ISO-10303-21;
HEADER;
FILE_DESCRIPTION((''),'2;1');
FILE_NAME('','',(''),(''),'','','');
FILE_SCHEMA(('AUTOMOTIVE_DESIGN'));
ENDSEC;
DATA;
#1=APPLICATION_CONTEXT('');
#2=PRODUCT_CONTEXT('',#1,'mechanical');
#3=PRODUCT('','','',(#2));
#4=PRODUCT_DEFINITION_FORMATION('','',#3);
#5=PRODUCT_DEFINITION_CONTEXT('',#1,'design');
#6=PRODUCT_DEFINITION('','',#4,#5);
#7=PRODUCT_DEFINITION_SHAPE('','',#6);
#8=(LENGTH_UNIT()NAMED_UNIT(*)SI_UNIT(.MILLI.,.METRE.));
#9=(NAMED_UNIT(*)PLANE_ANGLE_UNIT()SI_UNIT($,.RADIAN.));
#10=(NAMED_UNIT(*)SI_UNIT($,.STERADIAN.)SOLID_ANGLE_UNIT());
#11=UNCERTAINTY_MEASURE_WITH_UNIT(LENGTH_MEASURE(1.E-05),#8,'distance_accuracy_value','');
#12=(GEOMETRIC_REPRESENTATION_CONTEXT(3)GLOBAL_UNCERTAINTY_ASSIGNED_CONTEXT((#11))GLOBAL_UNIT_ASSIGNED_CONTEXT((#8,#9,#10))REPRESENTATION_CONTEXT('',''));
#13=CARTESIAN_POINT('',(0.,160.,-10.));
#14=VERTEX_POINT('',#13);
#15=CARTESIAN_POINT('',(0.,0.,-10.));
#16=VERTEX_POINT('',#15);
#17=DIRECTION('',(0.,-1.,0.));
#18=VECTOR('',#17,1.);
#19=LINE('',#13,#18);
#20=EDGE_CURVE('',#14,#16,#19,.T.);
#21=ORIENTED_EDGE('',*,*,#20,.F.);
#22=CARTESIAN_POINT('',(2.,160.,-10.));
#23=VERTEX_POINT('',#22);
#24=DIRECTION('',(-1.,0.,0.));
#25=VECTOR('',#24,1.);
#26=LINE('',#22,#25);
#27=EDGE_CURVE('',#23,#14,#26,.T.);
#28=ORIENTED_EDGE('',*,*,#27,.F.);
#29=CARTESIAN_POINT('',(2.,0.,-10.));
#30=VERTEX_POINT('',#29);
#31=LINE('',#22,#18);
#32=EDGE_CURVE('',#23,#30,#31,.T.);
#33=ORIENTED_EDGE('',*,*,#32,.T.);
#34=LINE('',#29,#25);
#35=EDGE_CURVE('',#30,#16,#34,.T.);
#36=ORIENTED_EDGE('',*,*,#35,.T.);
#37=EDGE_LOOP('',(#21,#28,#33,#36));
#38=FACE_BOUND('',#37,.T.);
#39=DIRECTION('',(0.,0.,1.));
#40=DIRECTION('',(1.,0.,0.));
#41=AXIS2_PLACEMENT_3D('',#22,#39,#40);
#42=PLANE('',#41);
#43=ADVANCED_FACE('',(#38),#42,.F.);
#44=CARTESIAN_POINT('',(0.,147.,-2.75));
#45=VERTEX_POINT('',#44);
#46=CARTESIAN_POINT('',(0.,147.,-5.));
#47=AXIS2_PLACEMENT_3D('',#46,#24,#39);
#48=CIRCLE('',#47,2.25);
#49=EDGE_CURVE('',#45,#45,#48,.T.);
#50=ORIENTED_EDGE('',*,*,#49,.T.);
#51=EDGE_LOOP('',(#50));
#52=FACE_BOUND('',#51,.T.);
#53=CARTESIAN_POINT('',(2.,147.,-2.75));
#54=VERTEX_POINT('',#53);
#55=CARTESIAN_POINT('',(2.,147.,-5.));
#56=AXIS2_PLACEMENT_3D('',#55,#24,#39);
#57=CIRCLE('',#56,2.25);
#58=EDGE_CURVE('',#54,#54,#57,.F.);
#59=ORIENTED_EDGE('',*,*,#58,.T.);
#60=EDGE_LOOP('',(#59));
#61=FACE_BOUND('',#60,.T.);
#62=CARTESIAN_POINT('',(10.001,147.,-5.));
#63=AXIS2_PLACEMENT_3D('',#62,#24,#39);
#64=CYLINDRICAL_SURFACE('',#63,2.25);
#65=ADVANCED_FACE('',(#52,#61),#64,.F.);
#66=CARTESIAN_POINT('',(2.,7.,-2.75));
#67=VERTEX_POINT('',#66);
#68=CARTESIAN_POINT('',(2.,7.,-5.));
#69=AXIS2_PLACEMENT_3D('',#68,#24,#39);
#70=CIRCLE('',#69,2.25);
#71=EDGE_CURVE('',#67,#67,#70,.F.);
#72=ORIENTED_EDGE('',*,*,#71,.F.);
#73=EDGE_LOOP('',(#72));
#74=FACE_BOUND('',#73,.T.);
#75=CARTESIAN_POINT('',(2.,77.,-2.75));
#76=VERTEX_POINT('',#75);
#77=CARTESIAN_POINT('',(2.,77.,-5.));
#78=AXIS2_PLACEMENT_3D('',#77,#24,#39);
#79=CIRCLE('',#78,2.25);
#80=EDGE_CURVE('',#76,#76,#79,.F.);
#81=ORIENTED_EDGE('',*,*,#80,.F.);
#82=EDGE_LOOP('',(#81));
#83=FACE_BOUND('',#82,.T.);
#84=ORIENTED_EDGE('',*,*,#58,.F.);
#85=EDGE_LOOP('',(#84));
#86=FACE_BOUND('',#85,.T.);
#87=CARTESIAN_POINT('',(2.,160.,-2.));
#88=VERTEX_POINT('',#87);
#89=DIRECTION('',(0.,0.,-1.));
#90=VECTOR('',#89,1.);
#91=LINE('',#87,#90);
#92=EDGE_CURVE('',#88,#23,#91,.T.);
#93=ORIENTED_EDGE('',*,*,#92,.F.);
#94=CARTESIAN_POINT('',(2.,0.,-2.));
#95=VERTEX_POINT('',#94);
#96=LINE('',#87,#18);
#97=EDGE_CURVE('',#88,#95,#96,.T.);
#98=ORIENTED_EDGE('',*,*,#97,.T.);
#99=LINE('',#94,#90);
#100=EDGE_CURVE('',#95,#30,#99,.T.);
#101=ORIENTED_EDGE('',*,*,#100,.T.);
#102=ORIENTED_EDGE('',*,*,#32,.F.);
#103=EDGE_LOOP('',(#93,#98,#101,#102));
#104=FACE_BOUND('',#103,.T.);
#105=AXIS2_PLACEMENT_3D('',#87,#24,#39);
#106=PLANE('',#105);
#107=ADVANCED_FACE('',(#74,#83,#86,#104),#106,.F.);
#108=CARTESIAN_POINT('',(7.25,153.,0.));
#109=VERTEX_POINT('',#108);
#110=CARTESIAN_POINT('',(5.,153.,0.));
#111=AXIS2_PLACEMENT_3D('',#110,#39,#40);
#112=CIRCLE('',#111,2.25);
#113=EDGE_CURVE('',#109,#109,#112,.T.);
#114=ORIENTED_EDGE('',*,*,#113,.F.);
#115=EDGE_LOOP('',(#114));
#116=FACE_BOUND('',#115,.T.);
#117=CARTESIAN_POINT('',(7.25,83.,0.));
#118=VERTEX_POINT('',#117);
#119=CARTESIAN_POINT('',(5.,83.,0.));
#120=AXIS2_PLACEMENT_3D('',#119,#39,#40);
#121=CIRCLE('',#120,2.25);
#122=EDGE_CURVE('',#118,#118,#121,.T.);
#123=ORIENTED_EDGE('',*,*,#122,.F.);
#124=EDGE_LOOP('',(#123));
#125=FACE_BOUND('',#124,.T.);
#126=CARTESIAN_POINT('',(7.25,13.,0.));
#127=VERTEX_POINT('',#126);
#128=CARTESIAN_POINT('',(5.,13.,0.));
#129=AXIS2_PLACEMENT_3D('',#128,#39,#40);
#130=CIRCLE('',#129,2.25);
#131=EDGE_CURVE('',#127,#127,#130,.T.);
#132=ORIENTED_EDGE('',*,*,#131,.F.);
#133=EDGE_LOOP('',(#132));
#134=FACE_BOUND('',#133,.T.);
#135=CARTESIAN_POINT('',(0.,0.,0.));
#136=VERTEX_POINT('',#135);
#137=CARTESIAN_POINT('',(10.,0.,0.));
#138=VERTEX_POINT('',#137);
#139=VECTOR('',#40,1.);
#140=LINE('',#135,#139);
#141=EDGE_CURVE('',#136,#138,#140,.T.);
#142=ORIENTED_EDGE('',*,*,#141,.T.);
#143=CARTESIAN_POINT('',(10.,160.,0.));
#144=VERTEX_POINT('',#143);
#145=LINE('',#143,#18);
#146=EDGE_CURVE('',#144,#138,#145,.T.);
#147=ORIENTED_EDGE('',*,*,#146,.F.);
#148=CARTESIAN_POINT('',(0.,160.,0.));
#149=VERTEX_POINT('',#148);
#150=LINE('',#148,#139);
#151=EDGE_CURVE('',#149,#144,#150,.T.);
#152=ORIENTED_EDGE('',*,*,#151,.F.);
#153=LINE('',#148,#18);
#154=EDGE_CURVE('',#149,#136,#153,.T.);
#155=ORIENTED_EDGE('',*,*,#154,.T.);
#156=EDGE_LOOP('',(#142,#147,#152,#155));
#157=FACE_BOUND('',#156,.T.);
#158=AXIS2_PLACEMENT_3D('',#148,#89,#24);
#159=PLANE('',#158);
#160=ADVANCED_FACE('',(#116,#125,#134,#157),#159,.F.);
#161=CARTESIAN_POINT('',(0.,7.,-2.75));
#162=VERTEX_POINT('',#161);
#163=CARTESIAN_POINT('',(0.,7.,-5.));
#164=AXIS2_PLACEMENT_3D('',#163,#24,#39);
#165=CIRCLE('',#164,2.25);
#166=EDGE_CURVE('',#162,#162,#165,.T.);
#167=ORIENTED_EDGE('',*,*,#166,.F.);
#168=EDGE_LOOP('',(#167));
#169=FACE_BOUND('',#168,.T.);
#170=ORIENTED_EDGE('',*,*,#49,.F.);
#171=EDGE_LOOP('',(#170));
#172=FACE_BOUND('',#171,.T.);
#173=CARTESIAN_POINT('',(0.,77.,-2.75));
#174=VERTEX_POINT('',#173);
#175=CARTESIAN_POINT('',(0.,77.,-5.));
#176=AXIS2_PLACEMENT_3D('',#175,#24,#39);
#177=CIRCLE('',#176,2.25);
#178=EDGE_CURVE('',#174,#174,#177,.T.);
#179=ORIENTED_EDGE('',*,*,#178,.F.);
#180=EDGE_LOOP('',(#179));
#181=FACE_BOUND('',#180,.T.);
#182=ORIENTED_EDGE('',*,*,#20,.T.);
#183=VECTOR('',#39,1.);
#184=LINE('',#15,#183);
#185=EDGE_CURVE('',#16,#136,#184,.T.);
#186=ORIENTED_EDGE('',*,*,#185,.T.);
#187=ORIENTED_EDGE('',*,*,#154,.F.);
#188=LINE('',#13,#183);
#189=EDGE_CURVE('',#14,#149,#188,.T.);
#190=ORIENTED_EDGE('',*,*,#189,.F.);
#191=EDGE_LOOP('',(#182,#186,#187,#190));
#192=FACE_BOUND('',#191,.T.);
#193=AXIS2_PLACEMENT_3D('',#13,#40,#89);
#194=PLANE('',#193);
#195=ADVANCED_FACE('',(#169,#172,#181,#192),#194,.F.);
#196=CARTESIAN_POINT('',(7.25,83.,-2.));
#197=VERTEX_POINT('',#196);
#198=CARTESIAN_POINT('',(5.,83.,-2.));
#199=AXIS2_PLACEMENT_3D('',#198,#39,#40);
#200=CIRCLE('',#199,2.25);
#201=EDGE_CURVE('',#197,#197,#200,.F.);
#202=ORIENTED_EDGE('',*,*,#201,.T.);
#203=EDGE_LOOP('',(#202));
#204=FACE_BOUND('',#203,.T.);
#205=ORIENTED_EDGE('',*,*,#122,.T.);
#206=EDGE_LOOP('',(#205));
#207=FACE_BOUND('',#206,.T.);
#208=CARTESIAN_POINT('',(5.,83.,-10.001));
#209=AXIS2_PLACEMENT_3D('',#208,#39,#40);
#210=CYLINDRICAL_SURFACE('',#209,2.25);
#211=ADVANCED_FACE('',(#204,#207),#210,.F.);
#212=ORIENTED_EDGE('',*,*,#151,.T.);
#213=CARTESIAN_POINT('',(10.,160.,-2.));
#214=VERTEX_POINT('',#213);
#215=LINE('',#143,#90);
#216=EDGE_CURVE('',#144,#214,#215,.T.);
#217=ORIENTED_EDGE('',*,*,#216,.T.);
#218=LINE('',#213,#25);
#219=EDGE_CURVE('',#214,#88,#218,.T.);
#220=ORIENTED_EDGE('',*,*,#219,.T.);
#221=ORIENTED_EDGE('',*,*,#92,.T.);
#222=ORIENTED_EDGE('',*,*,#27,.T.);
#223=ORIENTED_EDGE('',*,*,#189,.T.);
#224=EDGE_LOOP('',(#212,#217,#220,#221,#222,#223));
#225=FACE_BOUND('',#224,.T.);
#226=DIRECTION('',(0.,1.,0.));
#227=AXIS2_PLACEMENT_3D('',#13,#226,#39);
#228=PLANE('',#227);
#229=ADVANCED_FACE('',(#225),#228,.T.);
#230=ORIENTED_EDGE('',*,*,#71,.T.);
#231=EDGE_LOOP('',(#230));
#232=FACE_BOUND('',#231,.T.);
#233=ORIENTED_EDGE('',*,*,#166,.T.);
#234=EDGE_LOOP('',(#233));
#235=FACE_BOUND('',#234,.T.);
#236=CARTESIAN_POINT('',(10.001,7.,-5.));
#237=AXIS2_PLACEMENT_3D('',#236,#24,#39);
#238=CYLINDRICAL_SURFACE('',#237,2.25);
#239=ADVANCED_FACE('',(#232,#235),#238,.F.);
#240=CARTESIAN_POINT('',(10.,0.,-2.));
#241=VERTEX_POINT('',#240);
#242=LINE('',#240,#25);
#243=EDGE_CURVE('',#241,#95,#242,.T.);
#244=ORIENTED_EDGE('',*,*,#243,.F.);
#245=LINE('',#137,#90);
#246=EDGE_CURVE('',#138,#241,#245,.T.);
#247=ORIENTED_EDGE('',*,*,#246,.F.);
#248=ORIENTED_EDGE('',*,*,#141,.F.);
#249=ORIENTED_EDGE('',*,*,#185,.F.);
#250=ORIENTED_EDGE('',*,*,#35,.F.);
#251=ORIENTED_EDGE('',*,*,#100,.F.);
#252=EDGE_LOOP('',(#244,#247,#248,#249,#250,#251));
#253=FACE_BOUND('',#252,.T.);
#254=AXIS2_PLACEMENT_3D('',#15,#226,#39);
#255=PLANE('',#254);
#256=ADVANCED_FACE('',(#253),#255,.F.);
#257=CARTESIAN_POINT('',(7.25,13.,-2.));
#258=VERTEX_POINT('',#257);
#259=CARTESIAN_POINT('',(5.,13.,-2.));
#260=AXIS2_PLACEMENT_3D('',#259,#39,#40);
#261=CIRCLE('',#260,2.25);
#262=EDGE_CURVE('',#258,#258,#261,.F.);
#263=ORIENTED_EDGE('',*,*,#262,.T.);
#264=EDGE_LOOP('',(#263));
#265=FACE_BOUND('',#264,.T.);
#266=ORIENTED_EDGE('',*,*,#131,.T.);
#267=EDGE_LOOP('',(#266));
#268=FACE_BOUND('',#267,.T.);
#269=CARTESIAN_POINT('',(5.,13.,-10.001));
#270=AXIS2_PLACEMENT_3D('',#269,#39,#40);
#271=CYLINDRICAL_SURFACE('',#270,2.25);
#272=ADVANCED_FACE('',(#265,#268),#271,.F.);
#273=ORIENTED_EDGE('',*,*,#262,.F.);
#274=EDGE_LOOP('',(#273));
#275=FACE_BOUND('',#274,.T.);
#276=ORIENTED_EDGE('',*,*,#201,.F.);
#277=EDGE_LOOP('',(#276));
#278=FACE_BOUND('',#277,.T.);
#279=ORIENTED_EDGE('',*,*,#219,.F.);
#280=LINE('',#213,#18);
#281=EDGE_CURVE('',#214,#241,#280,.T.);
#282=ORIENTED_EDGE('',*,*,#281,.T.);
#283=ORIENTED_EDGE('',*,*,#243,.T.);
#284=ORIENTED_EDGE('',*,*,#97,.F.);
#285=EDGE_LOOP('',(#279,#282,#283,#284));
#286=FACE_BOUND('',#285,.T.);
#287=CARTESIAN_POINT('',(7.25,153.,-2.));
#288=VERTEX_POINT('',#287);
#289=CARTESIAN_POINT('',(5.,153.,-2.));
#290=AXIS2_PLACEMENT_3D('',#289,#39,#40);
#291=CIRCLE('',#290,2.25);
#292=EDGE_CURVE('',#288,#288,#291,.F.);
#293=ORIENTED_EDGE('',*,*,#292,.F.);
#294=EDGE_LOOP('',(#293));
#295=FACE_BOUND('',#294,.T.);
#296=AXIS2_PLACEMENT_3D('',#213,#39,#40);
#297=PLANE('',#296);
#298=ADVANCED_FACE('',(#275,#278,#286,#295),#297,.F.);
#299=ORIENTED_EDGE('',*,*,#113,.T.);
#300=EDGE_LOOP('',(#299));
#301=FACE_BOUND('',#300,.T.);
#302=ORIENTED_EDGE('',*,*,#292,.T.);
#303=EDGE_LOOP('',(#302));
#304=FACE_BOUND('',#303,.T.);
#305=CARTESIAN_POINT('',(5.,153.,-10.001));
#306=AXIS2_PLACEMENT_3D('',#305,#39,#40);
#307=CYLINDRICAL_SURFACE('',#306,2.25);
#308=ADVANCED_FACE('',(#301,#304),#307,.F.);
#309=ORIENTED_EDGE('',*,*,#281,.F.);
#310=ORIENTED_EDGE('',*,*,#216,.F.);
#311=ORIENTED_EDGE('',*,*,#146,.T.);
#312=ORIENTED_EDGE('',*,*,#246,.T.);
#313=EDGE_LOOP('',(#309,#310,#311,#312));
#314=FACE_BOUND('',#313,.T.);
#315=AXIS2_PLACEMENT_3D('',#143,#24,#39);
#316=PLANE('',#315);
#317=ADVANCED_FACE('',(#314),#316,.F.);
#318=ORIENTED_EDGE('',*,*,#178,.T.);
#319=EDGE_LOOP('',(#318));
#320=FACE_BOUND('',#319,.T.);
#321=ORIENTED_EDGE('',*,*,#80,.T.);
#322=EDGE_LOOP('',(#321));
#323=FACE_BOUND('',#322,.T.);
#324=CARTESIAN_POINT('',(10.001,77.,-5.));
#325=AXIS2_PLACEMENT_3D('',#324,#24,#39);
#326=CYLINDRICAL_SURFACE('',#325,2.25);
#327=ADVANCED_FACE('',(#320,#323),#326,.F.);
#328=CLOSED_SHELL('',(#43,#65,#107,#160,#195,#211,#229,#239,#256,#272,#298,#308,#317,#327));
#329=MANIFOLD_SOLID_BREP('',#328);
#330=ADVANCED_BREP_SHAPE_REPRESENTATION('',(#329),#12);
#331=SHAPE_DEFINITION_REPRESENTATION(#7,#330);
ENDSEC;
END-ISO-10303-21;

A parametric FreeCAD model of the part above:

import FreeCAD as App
import Part
import Sketcher

doc = App.newDocument("Part")
body = doc.addObject("PartDesign::Body", "Body")

sketch1 = body.newObject("Sketcher::SketchObject", "Sketch")
sketch1.AttachmentSupport = (doc.getObject("XZ_Plane"), [""])
sketch1.MapMode = "FlatFace"
sketch1.addGeometry([
    Part.LineSegment(App.Vector(0, -10, 0), App.Vector(0, 0, 0)),
    Part.LineSegment(App.Vector(0, 0, 0), App.Vector(10, 0, 0)),
    Part.LineSegment(App.Vector(10, 0, 0), App.Vector(10, -2, 0)),
    Part.LineSegment(App.Vector(10, -2, 0), App.Vector(2, -2, 0)),
    Part.LineSegment(App.Vector(2, -2, 0), App.Vector(2, -10, 0)),
    Part.LineSegment(App.Vector(2, -10, 0), App.Vector(0, -10, 0)),
], False)
sketch1.addConstraint([
    Sketcher.Constraint("Coincident", 0, 2, 1, 1),
    Sketcher.Constraint("Coincident", 1, 2, 2, 1),
    Sketcher.Constraint("Coincident", 2, 2, 3, 1),
    Sketcher.Constraint("Coincident", 3, 2, 4, 1),
    Sketcher.Constraint("Coincident", 4, 2, 5, 1),
    Sketcher.Constraint("Coincident", 5, 2, 0, 1),
    Sketcher.Constraint("Vertical", 0),
    Sketcher.Constraint("Horizontal", 1),
    Sketcher.Constraint("Vertical", 2),
    Sketcher.Constraint("Horizontal", 3),
    Sketcher.Constraint("Vertical", 4),
    Sketcher.Constraint("Horizontal", 5),
    Sketcher.Constraint("Coincident", 0, 2, -1, 1),
    Sketcher.Constraint("Equal", 1, 0),
    Sketcher.Constraint("Equal", 5, 2),
    Sketcher.Constraint("DistanceX", 1, 1, 1, 2, 10.0),
    Sketcher.Constraint("DistanceX", 3, 2, 3, 1, 8.0),
])
pad1 = body.newObject("PartDesign::Pad", "Pad")
pad1.Profile = sketch1
pad1.Length = 160
pad1.Reversed = True

sketch2 = body.newObject("Sketcher::SketchObject", "Sketch001")
sketch2.AttachmentSupport = (doc.getObject("XY_Plane"), [""])
sketch2.MapMode = "FlatFace"
sketch2.addGeometry(Part.Circle(App.Vector(5, 13, 0), App.Vector(0, 0, 1), 2.2), False)
sketch2.addConstraint([
    Sketcher.Constraint("Diameter", 0, 4.5),
    Sketcher.Constraint("DistanceX", -1, 1, 0, 3, 5.0),
    Sketcher.Constraint("DistanceY", -1, 1, 0, 3, 13.0),
])
pocket1 = body.newObject("PartDesign::Pocket", "Pocket")
pocket1.Profile = sketch2
pocket1.Type = "UpToFirst"

sketch3 = body.newObject("Sketcher::SketchObject", "Sketch002")
sketch3.AttachmentSupport = (doc.getObject("XY_Plane"), [""])
sketch3.MapMode = "FlatFace"
sketch3.addGeometry(Part.Circle(App.Vector(5, 83, 0), App.Vector(0, 0, 1), 2.2), False)
sketch3.addConstraint([
    Sketcher.Constraint("Diameter", 0, 4.5),
    Sketcher.Constraint("DistanceX", -1, 1, 0, 3, 5.0),
    Sketcher.Constraint("DistanceY", -1, 1, 0, 3, 83.0),
])
pocket2 = body.newObject("PartDesign::Pocket", "Pocket001")
pocket2.Profile = sketch3
pocket2.Type = "UpToFirst"

sketch4 = body.newObject("Sketcher::SketchObject", "Sketch003")
sketch4.AttachmentSupport = (doc.getObject("XY_Plane"), [""])
sketch4.MapMode = "FlatFace"
sketch4.addGeometry(Part.Circle(App.Vector(5, 153, 0), App.Vector(0, 0, 1), 2.2), False)
sketch4.addConstraint([
    Sketcher.Constraint("Diameter", 0, 4.5),
    Sketcher.Constraint("DistanceX", -1, 1, 0, 3, 5.0),
    Sketcher.Constraint("DistanceY", -1, 1, 0, 3, 153.0),
])
pocket3 = body.newObject("PartDesign::Pocket", "Pocket002")
pocket3.Profile = sketch4
pocket3.Type = "UpToFirst"

sketch5 = body.newObject("Sketcher::SketchObject", "Sketch004")
sketch5.AttachmentSupport = (doc.getObject("YZ_Plane"), [""])
sketch5.MapMode = "FlatFace"
sketch5.addGeometry(Part.Circle(App.Vector(7, -5, 0), App.Vector(0, 0, 1), 2.2), False)
sketch5.addConstraint([
    Sketcher.Constraint("Diameter", 0, 4.5),
    Sketcher.Constraint("DistanceX", -1, 1, 0, 3, 7.0),
    Sketcher.Constraint("DistanceY", 0, 3, -1, 1, 5.0),
])
pocket4 = body.newObject("PartDesign::Pocket", "Pocket003")
pocket4.Profile = sketch5
pocket4.Type = "UpToFirst"
pocket4.Reversed = True

sketch6 = body.newObject("Sketcher::SketchObject", "Sketch005")
sketch6.AttachmentSupport = (doc.getObject("YZ_Plane"), [""])
sketch6.MapMode = "FlatFace"
sketch6.addGeometry(Part.Circle(App.Vector(77, -5, 0), App.Vector(0, 0, 1), 2.2), False)
sketch6.addConstraint([
    Sketcher.Constraint("Diameter", 0, 4.5),
    Sketcher.Constraint("DistanceX", -1, 1, 0, 3, 77.0),
    Sketcher.Constraint("DistanceY", 0, 3, -1, 1, 5.0),
])
pocket5 = body.newObject("PartDesign::Pocket", "Pocket004")
pocket5.Profile = sketch6
pocket5.Type = "UpToFirst"
pocket5.Reversed = True

sketch7 = body.newObject("Sketcher::SketchObject", "Sketch006")
sketch7.AttachmentSupport = (doc.getObject("YZ_Plane"), [""])
sketch7.MapMode = "FlatFace"
sketch7.addGeometry(Part.Circle(App.Vector(147, -5, 0), App.Vector(0, 0, 1), 2.2), False)
sketch7.addConstraint([
    Sketcher.Constraint("Diameter", 0, 4.5),
    Sketcher.Constraint("DistanceX", -1, 1, 0, 3, 147.0),
    Sketcher.Constraint("DistanceY", 0, 3, -1, 1, 5.0),
])
pocket6 = body.newObject("PartDesign::Pocket", "Pocket005")
pocket6.Profile = sketch7
pocket6.Type = "UpToFirst"
pocket6.Reversed = True

doc.recompute()
